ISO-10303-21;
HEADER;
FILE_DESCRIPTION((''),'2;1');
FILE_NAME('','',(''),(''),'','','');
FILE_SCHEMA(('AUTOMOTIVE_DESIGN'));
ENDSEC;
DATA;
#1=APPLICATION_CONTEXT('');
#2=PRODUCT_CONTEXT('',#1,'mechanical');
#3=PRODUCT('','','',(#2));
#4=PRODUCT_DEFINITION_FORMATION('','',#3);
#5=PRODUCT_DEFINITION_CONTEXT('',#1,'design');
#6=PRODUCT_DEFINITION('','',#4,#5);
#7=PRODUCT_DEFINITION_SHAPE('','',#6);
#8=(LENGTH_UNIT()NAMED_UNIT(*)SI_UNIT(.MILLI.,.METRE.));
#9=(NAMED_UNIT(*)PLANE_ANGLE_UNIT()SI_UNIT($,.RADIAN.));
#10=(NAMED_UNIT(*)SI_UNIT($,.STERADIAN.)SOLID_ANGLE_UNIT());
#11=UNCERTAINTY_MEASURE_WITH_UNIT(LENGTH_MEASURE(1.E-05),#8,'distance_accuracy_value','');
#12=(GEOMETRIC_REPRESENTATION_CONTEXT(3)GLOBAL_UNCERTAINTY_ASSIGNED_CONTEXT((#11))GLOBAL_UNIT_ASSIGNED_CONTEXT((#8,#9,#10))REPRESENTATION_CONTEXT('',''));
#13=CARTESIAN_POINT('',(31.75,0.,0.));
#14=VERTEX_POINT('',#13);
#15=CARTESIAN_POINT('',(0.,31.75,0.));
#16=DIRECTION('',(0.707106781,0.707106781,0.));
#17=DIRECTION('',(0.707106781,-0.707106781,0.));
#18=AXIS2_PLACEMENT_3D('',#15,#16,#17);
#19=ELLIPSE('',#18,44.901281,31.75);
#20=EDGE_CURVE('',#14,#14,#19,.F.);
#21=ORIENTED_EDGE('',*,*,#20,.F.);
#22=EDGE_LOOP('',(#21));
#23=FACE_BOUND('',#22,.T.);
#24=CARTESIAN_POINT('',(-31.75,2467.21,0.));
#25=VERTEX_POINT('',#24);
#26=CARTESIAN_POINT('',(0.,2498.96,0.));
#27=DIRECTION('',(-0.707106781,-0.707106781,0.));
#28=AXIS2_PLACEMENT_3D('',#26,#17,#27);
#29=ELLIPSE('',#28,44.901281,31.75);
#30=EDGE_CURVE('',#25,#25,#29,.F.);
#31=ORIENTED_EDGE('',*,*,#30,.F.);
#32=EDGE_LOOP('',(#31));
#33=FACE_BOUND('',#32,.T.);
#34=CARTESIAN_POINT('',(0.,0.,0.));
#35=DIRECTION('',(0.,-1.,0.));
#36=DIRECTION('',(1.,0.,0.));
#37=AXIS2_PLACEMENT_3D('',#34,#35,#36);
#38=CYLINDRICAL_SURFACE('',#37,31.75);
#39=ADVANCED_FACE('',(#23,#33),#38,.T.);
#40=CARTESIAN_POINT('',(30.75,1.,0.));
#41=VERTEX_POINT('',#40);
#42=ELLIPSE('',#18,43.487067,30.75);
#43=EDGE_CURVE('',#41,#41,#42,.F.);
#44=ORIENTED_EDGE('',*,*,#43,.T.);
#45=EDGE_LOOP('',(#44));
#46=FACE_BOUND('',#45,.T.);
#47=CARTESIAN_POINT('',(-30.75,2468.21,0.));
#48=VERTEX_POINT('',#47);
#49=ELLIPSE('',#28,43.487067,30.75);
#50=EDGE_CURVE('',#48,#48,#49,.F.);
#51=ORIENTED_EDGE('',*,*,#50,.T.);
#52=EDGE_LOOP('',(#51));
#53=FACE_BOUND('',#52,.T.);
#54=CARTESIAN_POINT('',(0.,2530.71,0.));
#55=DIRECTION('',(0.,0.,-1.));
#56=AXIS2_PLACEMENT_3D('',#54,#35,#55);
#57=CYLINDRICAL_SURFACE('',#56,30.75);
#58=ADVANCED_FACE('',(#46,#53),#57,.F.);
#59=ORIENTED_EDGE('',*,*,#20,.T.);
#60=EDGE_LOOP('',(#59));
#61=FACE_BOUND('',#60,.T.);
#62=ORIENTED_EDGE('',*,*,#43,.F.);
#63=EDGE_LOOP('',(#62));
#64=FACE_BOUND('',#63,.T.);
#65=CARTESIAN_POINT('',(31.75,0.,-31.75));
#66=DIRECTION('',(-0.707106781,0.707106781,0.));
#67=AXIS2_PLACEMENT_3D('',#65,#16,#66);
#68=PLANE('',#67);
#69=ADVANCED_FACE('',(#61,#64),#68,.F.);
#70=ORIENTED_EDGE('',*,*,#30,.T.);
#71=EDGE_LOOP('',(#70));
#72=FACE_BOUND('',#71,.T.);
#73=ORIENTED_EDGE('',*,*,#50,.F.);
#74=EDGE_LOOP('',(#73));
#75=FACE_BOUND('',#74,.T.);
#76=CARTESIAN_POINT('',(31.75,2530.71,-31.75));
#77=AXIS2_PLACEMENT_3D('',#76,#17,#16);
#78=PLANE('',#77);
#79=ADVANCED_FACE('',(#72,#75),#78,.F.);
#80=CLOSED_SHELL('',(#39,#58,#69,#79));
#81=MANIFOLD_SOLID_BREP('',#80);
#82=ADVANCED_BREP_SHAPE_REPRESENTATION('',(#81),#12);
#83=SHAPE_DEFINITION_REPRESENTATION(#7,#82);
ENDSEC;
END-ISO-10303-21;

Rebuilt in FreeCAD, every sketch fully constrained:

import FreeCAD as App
import Part
import Sketcher
from FreeCAD import Vector
Q = App.Units.Quantity


def add_polygon(sketch, points):
    """Adds a closed chain of lines whose ends are joined by coincident constraints."""
    first, n = sketch.GeometryCount, len(points)
    for a, b in zip(points, points[1:] + points[:1]):
        sketch.addGeometry(Part.LineSegment(App.Vector(*a, 0), App.Vector(*b, 0)), False)
    for i in range(n):
        sketch.addConstraint(Sketcher.Constraint("Coincident", first + i, 2, first + (i + 1) % n, 1))

doc = App.newDocument("Part")
body = doc.addObject("PartDesign::Body", "Body")

# Sketch on XY plane
sketch1 = body.newObject("Sketcher::SketchObject", "Sketch")
sketch1.AttachmentSupport = (doc.getObject("XY_Plane"), [""])
sketch1.MapMode = "FlatFace"
add_polygon(sketch1, [(0, 2530.71), (0, 0), (31.75, 0), (31.75, 2530.71)])  # lines 0-3
sketch1.addConstraint([
    Sketcher.Constraint("Vertical", 0),
    Sketcher.Constraint("Horizontal", 1),
    Sketcher.Constraint("Vertical", 2),
    Sketcher.Constraint("Horizontal", 3),
    Sketcher.Constraint("Coincident", 0, 2, -1, 1),
    Sketcher.Constraint("DistanceX", 1, 1, 1, 2, Q("1.25 in")),
    Sketcher.Constraint("DistanceY", 0, 2, 0, 1, 2530.71),
])
revolution = body.newObject("PartDesign::Revolution", "Revolution")
revolution.Profile = sketch1
revolution.ReferenceAxis = (sketch1, ["V_Axis"])
revolution.Angle = 360

# Sketch on XY plane
sketch2 = body.newObject("Sketcher::SketchObject", "Sketch001")
sketch2.AttachmentSupport = (doc.getObject("XY_Plane"), [""])
sketch2.MapMode = "FlatFace"
add_polygon(sketch2, [(31.75, 2530.71), (-31.75, 2530.71), (-31.75, 2467.21)])  # lines 0-2
add_polygon(sketch2, [(31.75, 0), (-31.75, 63.5), (-31.75, 0)])  # lines 3-5
sketch2.addConstraint([
    Sketcher.Constraint("Horizontal", 0),
    Sketcher.Constraint("Vertical", 1),
    Sketcher.Constraint("Vertical", 4),
    Sketcher.Constraint("Horizontal", 5),
    Sketcher.Constraint("Symmetric", 4, 2, 5, 2, -1, 1),
    Sketcher.Constraint("Perpendicular", 2, 3),
    Sketcher.Constraint("Vertical", 1, 2, 3, 2),
    Sketcher.Constraint("Vertical", 2, 2, 5, 2),
    Sketcher.Constraint("Equal", 5, 1),
    Sketcher.Constraint("DistanceX", 0, 2, 0, 1, Q("2.5 in")),
    Sketcher.Constraint("DistanceY", -1, 1, 0, 2, 2530.71),
])
pocket1 = body.newObject("PartDesign::Pocket", "Pocket")
pocket1.Profile = sketch2
pocket1.Type = "ThroughAll"
pocket1.Midplane = True

# Sketch on XZ plane
sketch3 = body.newObject("Sketcher::SketchObject", "Sketch002")
sketch3.AttachmentSupport = (doc.getObject("XZ_Plane"), [""])
sketch3.MapMode = "FlatFace"
sketch3.addGeometry(Part.Circle(Vector(0, 0, 0), Vector(0, 0, 1), 30.75), False)
sketch3.addConstraint([
    Sketcher.Constraint("Coincident", 0, 3, -1, 1),
    Sketcher.Constraint("Diameter", 0, 61.5),
])
pocket2 = body.newObject("PartDesign::Pocket", "Pocket001")
pocket2.Profile = sketch3
pocket2.Type = "ThroughAll"

doc.recompute()
